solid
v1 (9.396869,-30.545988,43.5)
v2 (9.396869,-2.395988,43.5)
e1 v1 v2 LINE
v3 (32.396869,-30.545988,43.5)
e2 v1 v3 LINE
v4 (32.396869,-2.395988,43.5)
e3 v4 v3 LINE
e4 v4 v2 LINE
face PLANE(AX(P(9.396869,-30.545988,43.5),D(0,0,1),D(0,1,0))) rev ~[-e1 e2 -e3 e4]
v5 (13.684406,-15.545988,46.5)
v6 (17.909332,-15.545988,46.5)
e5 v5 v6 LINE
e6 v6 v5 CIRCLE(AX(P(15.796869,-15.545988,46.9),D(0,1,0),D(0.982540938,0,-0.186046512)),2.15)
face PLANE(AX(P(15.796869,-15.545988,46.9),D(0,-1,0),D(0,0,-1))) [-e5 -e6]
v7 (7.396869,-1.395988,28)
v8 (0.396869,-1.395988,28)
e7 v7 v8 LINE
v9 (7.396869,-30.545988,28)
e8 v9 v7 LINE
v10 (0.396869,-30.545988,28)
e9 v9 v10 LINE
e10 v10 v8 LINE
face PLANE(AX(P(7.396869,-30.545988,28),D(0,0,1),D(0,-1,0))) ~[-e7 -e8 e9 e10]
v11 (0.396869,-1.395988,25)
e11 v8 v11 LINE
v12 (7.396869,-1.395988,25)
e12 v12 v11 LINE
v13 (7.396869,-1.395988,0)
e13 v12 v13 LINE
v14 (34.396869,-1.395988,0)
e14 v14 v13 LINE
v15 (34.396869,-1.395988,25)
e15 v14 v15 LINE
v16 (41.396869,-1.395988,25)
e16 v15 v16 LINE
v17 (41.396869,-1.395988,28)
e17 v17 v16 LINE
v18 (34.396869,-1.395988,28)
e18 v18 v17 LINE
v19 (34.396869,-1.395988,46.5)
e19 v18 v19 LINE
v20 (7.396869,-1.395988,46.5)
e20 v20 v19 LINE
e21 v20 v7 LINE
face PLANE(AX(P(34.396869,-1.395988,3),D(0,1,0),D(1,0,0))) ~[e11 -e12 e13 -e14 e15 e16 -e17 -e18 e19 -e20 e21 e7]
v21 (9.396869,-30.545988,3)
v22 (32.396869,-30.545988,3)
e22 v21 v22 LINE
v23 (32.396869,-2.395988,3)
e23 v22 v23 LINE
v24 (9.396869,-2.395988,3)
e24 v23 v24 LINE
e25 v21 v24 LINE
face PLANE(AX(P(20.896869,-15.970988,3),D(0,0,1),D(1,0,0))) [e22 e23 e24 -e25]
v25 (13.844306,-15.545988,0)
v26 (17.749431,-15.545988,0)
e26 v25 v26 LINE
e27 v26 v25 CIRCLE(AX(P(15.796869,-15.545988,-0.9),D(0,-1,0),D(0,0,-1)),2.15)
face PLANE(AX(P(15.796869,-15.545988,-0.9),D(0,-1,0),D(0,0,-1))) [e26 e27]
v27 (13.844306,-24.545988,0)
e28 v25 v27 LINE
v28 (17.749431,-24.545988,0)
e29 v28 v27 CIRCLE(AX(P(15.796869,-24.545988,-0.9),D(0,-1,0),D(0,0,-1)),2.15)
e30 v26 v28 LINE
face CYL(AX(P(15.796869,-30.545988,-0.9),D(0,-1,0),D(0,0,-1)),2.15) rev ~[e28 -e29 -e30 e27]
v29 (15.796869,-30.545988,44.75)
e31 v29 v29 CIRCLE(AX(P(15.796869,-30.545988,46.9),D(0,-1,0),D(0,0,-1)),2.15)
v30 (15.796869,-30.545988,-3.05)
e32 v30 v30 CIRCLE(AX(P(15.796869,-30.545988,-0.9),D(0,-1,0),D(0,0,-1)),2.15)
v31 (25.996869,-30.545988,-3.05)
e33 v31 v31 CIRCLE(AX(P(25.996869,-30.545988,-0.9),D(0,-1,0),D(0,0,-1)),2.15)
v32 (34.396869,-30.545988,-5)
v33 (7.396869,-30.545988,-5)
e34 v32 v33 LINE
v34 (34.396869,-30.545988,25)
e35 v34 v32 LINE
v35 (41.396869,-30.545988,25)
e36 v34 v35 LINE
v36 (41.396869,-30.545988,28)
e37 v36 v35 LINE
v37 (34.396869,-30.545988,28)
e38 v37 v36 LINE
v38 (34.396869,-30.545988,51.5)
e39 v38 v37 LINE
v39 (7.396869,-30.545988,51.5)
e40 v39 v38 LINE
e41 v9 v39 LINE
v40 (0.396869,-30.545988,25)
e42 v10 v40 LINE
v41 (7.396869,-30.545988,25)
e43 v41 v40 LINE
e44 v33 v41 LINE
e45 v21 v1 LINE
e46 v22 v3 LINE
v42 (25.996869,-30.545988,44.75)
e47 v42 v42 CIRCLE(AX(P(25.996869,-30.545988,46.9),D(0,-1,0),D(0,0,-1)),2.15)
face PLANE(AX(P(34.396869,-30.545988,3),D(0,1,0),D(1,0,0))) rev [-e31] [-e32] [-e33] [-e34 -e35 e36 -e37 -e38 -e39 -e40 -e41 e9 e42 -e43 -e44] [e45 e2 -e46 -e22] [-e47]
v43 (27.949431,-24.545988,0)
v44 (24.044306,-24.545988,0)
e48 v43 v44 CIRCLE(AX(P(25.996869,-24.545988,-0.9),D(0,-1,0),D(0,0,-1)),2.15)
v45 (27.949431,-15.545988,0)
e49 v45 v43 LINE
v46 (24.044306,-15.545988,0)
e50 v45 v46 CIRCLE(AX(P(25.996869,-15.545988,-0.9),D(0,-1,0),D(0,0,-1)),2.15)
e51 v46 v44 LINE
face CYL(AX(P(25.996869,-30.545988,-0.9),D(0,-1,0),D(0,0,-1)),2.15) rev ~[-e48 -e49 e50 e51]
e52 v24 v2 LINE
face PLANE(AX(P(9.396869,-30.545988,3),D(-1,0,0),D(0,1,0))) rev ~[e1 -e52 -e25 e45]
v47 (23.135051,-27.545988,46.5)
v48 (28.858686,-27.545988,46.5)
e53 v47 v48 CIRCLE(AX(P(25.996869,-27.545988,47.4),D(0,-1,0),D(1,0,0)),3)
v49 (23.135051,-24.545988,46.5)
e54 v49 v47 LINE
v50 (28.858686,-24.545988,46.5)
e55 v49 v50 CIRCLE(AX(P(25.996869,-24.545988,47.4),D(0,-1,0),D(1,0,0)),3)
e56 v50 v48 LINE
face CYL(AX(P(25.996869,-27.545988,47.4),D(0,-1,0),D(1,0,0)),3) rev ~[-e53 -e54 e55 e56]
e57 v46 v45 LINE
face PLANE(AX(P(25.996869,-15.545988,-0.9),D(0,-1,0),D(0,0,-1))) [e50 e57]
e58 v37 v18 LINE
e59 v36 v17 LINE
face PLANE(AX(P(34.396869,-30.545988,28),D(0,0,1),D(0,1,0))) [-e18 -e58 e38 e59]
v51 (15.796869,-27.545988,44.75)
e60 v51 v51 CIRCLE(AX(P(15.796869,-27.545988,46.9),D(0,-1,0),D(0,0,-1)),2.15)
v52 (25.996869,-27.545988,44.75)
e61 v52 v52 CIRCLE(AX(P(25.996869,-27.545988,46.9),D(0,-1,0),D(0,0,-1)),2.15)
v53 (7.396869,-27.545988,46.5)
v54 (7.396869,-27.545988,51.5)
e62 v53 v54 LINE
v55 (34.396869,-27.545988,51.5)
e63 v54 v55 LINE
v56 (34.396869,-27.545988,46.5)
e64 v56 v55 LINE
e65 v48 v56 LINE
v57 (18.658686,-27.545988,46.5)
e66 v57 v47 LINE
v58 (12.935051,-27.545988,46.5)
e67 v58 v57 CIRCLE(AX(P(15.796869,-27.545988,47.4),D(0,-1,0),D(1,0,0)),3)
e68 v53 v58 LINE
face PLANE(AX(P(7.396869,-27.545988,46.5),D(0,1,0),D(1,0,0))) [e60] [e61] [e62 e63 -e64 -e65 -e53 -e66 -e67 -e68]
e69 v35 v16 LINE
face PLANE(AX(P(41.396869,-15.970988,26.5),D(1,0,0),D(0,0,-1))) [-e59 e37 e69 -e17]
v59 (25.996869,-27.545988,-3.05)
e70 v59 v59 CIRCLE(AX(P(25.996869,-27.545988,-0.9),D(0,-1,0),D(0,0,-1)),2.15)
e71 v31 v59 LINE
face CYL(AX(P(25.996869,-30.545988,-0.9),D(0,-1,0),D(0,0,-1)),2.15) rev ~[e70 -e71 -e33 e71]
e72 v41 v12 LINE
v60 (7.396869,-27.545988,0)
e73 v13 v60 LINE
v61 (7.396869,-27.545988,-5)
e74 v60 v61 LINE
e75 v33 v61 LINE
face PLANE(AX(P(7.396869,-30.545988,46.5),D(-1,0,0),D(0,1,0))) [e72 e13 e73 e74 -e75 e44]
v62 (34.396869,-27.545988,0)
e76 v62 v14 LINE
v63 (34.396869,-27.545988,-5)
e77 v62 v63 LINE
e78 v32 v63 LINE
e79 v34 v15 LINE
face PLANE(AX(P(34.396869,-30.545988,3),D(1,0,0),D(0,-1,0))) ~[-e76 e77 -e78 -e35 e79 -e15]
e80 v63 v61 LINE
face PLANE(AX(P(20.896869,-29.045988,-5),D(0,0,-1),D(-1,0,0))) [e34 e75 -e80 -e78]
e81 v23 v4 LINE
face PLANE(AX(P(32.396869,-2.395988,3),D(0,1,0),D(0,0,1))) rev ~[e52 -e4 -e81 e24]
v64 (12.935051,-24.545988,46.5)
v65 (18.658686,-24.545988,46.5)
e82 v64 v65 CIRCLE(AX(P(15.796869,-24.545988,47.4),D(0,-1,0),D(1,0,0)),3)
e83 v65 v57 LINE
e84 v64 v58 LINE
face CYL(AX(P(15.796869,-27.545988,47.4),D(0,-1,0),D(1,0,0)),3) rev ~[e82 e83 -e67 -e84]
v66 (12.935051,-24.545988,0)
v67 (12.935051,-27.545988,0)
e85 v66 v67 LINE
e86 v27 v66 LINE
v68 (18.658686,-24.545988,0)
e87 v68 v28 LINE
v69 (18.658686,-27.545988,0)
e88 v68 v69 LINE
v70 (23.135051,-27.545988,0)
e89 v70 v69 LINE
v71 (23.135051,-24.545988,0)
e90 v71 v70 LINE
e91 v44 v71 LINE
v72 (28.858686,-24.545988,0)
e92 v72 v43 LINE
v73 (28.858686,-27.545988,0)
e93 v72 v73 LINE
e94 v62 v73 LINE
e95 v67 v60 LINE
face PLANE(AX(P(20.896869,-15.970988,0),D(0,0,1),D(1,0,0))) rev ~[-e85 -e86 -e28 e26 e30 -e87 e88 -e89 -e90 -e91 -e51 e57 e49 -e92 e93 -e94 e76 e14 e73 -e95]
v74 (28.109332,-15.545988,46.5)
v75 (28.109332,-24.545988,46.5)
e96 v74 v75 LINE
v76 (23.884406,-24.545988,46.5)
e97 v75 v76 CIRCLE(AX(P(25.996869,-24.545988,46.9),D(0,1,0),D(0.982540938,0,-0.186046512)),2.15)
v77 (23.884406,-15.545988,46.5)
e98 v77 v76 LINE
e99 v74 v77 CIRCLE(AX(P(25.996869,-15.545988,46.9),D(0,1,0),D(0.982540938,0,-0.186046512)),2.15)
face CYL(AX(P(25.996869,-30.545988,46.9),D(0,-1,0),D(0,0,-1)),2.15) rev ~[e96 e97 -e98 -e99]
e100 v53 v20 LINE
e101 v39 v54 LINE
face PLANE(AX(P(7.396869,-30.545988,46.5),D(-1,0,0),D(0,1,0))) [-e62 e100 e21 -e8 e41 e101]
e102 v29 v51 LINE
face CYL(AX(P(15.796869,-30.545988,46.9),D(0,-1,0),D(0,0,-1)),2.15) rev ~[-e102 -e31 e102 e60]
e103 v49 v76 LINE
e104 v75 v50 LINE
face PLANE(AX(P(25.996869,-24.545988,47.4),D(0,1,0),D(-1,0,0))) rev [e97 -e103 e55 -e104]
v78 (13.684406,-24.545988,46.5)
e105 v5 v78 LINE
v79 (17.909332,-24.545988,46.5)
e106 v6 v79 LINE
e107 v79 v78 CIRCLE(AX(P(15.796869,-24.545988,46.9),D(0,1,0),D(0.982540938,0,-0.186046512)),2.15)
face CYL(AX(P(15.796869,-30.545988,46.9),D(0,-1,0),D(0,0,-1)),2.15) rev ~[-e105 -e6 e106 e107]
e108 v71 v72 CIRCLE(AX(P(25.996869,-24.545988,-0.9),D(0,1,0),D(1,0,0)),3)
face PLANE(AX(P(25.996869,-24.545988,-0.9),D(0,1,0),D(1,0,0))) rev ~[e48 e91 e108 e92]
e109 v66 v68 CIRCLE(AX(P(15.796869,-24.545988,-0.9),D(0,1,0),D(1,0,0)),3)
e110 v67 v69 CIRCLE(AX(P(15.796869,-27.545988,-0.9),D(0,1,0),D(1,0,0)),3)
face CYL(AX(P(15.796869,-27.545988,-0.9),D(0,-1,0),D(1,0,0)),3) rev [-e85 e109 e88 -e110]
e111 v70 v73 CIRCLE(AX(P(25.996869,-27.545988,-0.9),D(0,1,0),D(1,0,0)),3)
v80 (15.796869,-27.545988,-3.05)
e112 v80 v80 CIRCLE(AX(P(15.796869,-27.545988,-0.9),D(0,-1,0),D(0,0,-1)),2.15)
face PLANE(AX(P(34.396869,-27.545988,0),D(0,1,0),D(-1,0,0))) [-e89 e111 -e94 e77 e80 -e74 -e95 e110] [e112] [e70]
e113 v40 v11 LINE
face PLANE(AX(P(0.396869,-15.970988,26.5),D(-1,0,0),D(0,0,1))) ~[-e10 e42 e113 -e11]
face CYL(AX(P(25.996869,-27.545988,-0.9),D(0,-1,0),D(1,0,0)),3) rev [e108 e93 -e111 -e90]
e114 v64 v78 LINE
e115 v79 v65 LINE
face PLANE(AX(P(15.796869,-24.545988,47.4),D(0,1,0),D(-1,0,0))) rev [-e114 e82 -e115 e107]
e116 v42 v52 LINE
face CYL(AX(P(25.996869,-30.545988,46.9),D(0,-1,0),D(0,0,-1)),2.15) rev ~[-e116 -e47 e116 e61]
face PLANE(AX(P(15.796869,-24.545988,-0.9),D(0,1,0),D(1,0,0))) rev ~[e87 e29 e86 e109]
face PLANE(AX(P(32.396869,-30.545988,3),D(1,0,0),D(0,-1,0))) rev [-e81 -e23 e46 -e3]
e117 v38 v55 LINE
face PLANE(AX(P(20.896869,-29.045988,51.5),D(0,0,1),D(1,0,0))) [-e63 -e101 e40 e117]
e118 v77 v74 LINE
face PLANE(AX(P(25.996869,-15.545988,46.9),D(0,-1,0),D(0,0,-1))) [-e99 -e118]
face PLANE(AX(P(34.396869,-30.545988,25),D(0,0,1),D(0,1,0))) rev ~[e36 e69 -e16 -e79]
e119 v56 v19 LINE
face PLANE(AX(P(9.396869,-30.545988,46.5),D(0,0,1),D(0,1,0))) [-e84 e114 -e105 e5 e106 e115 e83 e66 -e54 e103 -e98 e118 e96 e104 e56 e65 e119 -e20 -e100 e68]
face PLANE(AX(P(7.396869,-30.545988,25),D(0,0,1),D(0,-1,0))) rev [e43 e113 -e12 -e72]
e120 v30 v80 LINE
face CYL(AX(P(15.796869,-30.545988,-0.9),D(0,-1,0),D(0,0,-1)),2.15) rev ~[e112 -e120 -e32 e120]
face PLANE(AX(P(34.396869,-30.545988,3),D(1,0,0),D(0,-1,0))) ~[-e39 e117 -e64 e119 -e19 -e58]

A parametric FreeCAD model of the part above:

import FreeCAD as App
import Part
import Sketcher
from FreeCAD import Vector
Q = App.Units.Quantity


def add_polygon(sketch, points):
    """Adds a closed chain of lines whose ends are joined by coincident constraints."""
    first, n = sketch.GeometryCount, len(points)
    for a, b in zip(points, points[1:] + points[:1]):
        sketch.addGeometry(Part.LineSegment(App.Vector(*a, 0), App.Vector(*b, 0)), False)
    for i in range(n):
        sketch.addConstraint(Sketcher.Constraint("Coincident", first + i, 2, first + (i + 1) % n, 1))

doc = App.newDocument("Part")
body = doc.addObject("PartDesign::Body", "Body")

# Sketch on XY plane
sketch1 = doc.addObject("Sketcher::SketchObject", "Sketch")
body.addObject(sketch1)
sketch1.AttachmentSupport = (doc.XY_Plane, [""])
sketch1.MapMode = "FlatFace"
add_polygon(sketch1, [(7.396869, -30.545988), (34.396869, -30.545988), (34.396869, -1.395988), (7.396869, -1.395988)])  # lines 0-3
sketch1.addConstraint([
    Sketcher.Constraint("Horizontal", 0),
    Sketcher.Constraint("Vertical", 1),
    Sketcher.Constraint("Horizontal", 2),
    Sketcher.Constraint("Vertical", 3),
    Sketcher.Constraint("DistanceX", 0, 1, 0, 2, Q("27 mm")),
    Sketcher.Constraint("DistanceY", 1, 1, 1, 2, Q("29.15 mm")),
    Sketcher.Constraint("DistanceX", -1, 1, 0, 2, Q("34.396869 mm")),
    Sketcher.Constraint("DistanceY", 0, 2, -1, 1, Q("30.545988 mm")),
])
pad1 = doc.addObject("PartDesign::Pad", "Pad")
body.addObject(pad1)
pad1.Profile = sketch1
pad1.Length = 3

# Sketch on XY plane
sketch2 = doc.addObject("Sketcher::SketchObject", "Sketch001")
body.addObject(sketch2)
sketch2.AttachmentSupport = (doc.XY_Plane, [""])
sketch2.MapMode = "FlatFace"
add_polygon(sketch2, [(34.396869, -27.545988), (34.396869, -30.545988), (7.396869, -30.545988), (7.396869, -27.545988)])  # lines 0-3
sketch2.addConstraint([
    Sketcher.Constraint("Vertical", 0),
    Sketcher.Constraint("Horizontal", 1),
    Sketcher.Constraint("Vertical", 2),
    Sketcher.Constraint("Horizontal", 3),
    Sketcher.Constraint("DistanceX", 1, 2, 1, 1, Q("27 mm")),
    Sketcher.Constraint("DistanceY", 0, 2, 0, 1, Q("3 mm")),
    Sketcher.Constraint("DistanceX", -1, 1, 0, 2, Q("34.396869 mm")),
    Sketcher.Constraint("DistanceY", 0, 2, -1, 1, Q("30.545988 mm")),
])
pad2 = doc.addObject("PartDesign::Pad", "Pad001")
body.addObject(pad2)
pad2.Profile = sketch2
pad2.Length = 5
pad2.Reversed = True

# Sketch on XZ plane
sketch3 = doc.addObject("Sketcher::SketchObject", "Sketch002")
body.addObject(sketch3)
sketch3.AttachmentSupport = (doc.XZ_Plane, [""])
sketch3.MapMode = "FlatFace"
sketch3.AttachmentOffset = App.Placement(Vector(0, 0, 30.545988), App.Rotation())
sketch3.addGeometry([
    Part.Circle(Vector(15.796869, -0.9, 0), Vector(0, 0, 1), 2.15),
    Part.Circle(Vector(25.996869, -0.9, 0), Vector(0, 0, 1), 2.15),
], False)
sketch3.addConstraint([
    Sketcher.Constraint("Equal", 0, 1),
    Sketcher.Constraint("Horizontal", 0, 3, 1, 3),
    Sketcher.Constraint("Diameter", 0, Q("4.3 mm")),
    Sketcher.Constraint("DistanceY", 0, 3, -1, 1, Q("0.9 mm")),
    Sketcher.Constraint("DistanceX", 0, 3, 1, 3, Q("10.2 mm")),
    Sketcher.Constraint("DistanceX", -1, 1, 0, 3, Q("15.796869 mm")),
])
pocket1 = doc.addObject("PartDesign::Pocket", "Pocket")
body.addObject(pocket1)
pocket1.Profile = sketch3
pocket1.Length = 15

# Sketch on XZ plane
sketch4 = doc.addObject("Sketcher::SketchObject", "Sketch003")
body.addObject(sketch4)
sketch4.AttachmentSupport = (doc.XZ_Plane, [""])
sketch4.MapMode = "FlatFace"
sketch4.AttachmentOffset = App.Placement(Vector(0, 0, 27.545988), App.Rotation())
sketch4.addGeometry([
    Part.Circle(Vector(15.796869, -0.9, 0), Vector(0, 0, 1), 3),
    Part.Circle(Vector(25.996869, -0.9, 0), Vector(0, 0, 1), 3),
], False)
sketch4.addConstraint([
    Sketcher.Constraint("Equal", 0, 1),
    Sketcher.Constraint("Horizontal", 0, 3, 1, 3),
    Sketcher.Constraint("Diameter", 0, Q("6 mm")),
    Sketcher.Constraint("DistanceY", 0, 3, -1, 1, Q("0.9 mm")),
    Sketcher.Constraint("DistanceX", 0, 3, 1, 3, Q("10.2 mm")),
    Sketcher.Constraint("DistanceX", -1, 1, 0, 3, Q("15.796869 mm")),
])
pocket2 = doc.addObject("PartDesign::Pocket", "Pocket001")
body.addObject(pocket2)
pocket2.Profile = sketch4
pocket2.Length = 3

# Sketch on XY plane
sketch5 = doc.addObject("Sketcher::SketchObject", "Sketch004")
body.addObject(sketch5)
sketch5.AttachmentSupport = (doc.XY_Plane, [""])
sketch5.MapMode = "FlatFace"
sketch5.AttachmentOffset = App.Placement(Vector(0, 0, 3), App.Rotation())
add_polygon(sketch5, [(7.396869, -1.395988), (7.396869, -30.545988), (9.396869, -30.545988), (9.396869, -1.395988)])  # lines 0-3
sketch5.addConstraint([
    Sketcher.Constraint("Vertical", 0),
    Sketcher.Constraint("Horizontal", 1),
    Sketcher.Constraint("Vertical", 2),
    Sketcher.Constraint("Horizontal", 3),
    Sketcher.Constraint("DistanceX", 1, 1, 1, 2, Q("2 mm")),
    Sketcher.Constraint("DistanceY", 0, 2, 0, 1, Q("29.15 mm")),
    Sketcher.Constraint("DistanceX", -1, 1, 0, 2, Q("7.396869 mm")),
    Sketcher.Constraint("DistanceY", 0, 2, -1, 1, Q("30.545988 mm")),
])
pad3 = doc.addObject("PartDesign::Pad", "Pad002")
body.addObject(pad3)
pad3.Profile = sketch5
pad3.Length = 43.5

# Sketch on YZ plane
sketch6 = doc.addObject("Sketcher::SketchObject", "Sketch005")
body.addObject(sketch6)
sketch6.AttachmentSupport = (doc.YZ_Plane, [""])
sketch6.MapMode = "FlatFace"
sketch6.AttachmentOffset = App.Placement(Vector(0, 0, 9.396869), App.Rotation())
add_polygon(sketch6, [(-1.395988, 46.5), (-30.545988, 46.5), (-30.545988, 43.5), (-1.395988, 43.5)])  # lines 0-3
sketch6.addConstraint([
    Sketcher.Constraint("Horizontal", 0),
    Sketcher.Constraint("Vertical", 1),
    Sketcher.Constraint("Horizontal", 2),
    Sketcher.Constraint("Vertical", 3),
    Sketcher.Constraint("DistanceY", 1, 2, 1, 1, Q("3 mm")),
    Sketcher.Constraint("DistanceX", 0, 2, 0, 1, Q("29.15 mm")),
    Sketcher.Constraint("DistanceY", -1, 1, 0, 2, Q("46.5 mm")),
    Sketcher.Constraint("DistanceX", 0, 2, -1, 1, Q("30.545988 mm")),
])
pad4 = doc.addObject("PartDesign::Pad", "Pad003")
body.addObject(pad4)
pad4.Profile = sketch6
pad4.Length = 25

# Sketch on XY plane
sketch7 = doc.addObject("Sketcher::SketchObject", "Sketch006")
body.addObject(sketch7)
sketch7.AttachmentSupport = (doc.XY_Plane, [""])
sketch7.MapMode = "FlatFace"
sketch7.AttachmentOffset = App.Placement(Vector(0, 0, 46.5), App.Rotation())
add_polygon(sketch7, [(7.396869, -27.545988), (7.396869, -30.545988), (34.396869, -30.545988), (34.396869, -27.545988)])  # lines 0-3
sketch7.addConstraint([
    Sketcher.Constraint("Vertical", 0),
    Sketcher.Constraint("Horizontal", 1),
    Sketcher.Constraint("Vertical", 2),
    Sketcher.Constraint("Horizontal", 3),
    Sketcher.Constraint("DistanceX", 1, 1, 1, 2, Q("27 mm")),
    Sketcher.Constraint("DistanceY", 0, 2, 0, 1, Q("3 mm")),
    Sketcher.Constraint("DistanceX", -1, 1, 0, 2, Q("7.396869 mm")),
    Sketcher.Constraint("DistanceY", 0, 2, -1, 1, Q("30.545988 mm")),
])
pad5 = doc.addObject("PartDesign::Pad", "Pad004")
body.addObject(pad5)
pad5.Profile = sketch7
pad5.Length = 5

# Sketch on XZ plane
sketch8 = doc.addObject("Sketcher::SketchObject", "Sketch007")
body.addObject(sketch8)
sketch8.AttachmentSupport = (doc.XZ_Plane, [""])
sketch8.MapMode = "FlatFace"
sketch8.AttachmentOffset = App.Placement(Vector(0, 0, 30.545988), App.Rotation())
sketch8.addGeometry([
    Part.Circle(Vector(25.996869, 46.9, 0), Vector(0, 0, 1), 2.15),
    Part.Circle(Vector(15.796869, 46.9, 0), Vector(0, 0, 1), 2.15),
], False)
sketch8.addConstraint([
    Sketcher.Constraint("Equal", 0, 1),
    Sketcher.Constraint("Horizontal", 0, 3, 1, 3),
    Sketcher.Constraint("Diameter", 0, Q("4.3 mm")),
    Sketcher.Constraint("DistanceY", -1, 1, 0, 3, Q("46.9 mm")),
    Sketcher.Constraint("DistanceX", 1, 3, 0, 3, Q("10.2 mm")),
    Sketcher.Constraint("DistanceX", -1, 1, 0, 3, Q("25.996869 mm")),
])
pocket3 = doc.addObject("PartDesign::Pocket", "Pocket002")
body.addObject(pocket3)
pocket3.Profile = sketch8
pocket3.Length = 15
doc.recompute()

datumplane = doc.addObject("PartDesign::Plane", "DatumPlane")
body.addObject(datumplane)
datumplane.AttachmentSupport = (doc.XY_Plane, [""])
datumplane.MapMode = "FlatFace"
datumplane.AttachmentOffset = App.Placement(Vector(0, 0, 23.25), App.Rotation())
mirrored = doc.addObject("PartDesign::Mirrored", "Mirrored")
body.addObject(mirrored)
mirrored.Originals = [pocket2]
mirrored.MirrorPlane = (datumplane, [""])
body.Tip = mirrored
doc.recompute()

datumplane2 = doc.addObject("PartDesign::Plane", "DatumPlane001")
body.addObject(datumplane2)
datumplane2.AttachmentSupport = (doc.YZ_Plane, [""])
datumplane2.MapMode = "FlatFace"
datumplane2.AttachmentOffset = App.Placement(Vector(0, 0, 20.896869), App.Rotation())
mirrored2 = doc.addObject("PartDesign::Mirrored", "Mirrored001")
body.addObject(mirrored2)
mirrored2.Originals = [pad3]
mirrored2.MirrorPlane = (datumplane2, [""])
body.Tip = mirrored2

# Sketch on YZ plane
sketch9 = doc.addObject("Sketcher::SketchObject", "Sketch008")
body.addObject(sketch9)
sketch9.AttachmentSupport = (doc.YZ_Plane, [""])
sketch9.MapMode = "FlatFace"
sketch9.AttachmentOffset = App.Placement(Vector(0, 0, 32.396869), App.Rotation())
add_polygon(sketch9, [(-1.395988, 3), (-2.395988, 3), (-2.395988, 43.5), (-1.395988, 43.5)])  # lines 0-3
sketch9.addConstraint([
    Sketcher.Constraint("Horizontal", 0),
    Sketcher.Constraint("Vertical", 1),
    Sketcher.Constraint("Horizontal", 2),
    Sketcher.Constraint("Vertical", 3),
    Sketcher.Constraint("DistanceX", 0, 2, 0, 1, Q("1 mm")),
    Sketcher.Constraint("DistanceY", 1, 1, 1, 2, Q("40.5 mm")),
    Sketcher.Constraint("DistanceY", -1, 1, 0, 2, Q("3 mm")),
    Sketcher.Constraint("DistanceX", 0, 2, -1, 1, Q("2.395988 mm")),
])
pad6 = doc.addObject("PartDesign::Pad", "Pad005")
body.addObject(pad6)
pad6.Profile = sketch9
pad6.Length = 23
pad6.Reversed = True

# Sketch on YZ plane
sketch10 = doc.addObject("Sketcher::SketchObject", "Sketch009")
body.addObject(sketch10)
sketch10.AttachmentSupport = (doc.YZ_Plane, [""])
sketch10.MapMode = "FlatFace"
sketch10.AttachmentOffset = App.Placement(Vector(0, 0, 34.396869), App.Rotation())
add_polygon(sketch10, [(-1.395988, 28), (-30.545988, 28), (-30.545988, 25), (-1.395988, 25)])  # lines 0-3
sketch10.addConstraint([
    Sketcher.Constraint("Horizontal", 0),
    Sketcher.Constraint("Vertical", 1),
    Sketcher.Constraint("Horizontal", 2),
    Sketcher.Constraint("Vertical", 3),
    Sketcher.Constraint("DistanceY", 1, 2, 1, 1, Q("3 mm")),
    Sketcher.Constraint("DistanceY", -1, 1, 0, 2, Q("28 mm")),
    Sketcher.Constraint("DistanceX", 0, 2, 0, 1, Q("29.15 mm")),
    Sketcher.Constraint("DistanceX", 0, 2, -1, 1, Q("30.545988 mm")),
])
pad7 = doc.addObject("PartDesign::Pad", "Pad006")
body.addObject(pad7)
pad7.Profile = sketch10
pad7.Length = 7
doc.recompute()

datumplane3 = doc.addObject("PartDesign::Plane", "DatumPlane002")
body.addObject(datumplane3)
datumplane3.AttachmentSupport = (doc.YZ_Plane, [""])
datumplane3.MapMode = "FlatFace"
datumplane3.AttachmentOffset = App.Placement(Vector(0, 0, 20.896869), App.Rotation())
mirrored3 = doc.addObject("PartDesign::Mirrored", "Mirrored002")
body.addObject(mirrored3)
mirrored3.Originals = [pad7]
mirrored3.MirrorPlane = (datumplane3, [""])
body.Tip = mirrored3

doc.recompute()
